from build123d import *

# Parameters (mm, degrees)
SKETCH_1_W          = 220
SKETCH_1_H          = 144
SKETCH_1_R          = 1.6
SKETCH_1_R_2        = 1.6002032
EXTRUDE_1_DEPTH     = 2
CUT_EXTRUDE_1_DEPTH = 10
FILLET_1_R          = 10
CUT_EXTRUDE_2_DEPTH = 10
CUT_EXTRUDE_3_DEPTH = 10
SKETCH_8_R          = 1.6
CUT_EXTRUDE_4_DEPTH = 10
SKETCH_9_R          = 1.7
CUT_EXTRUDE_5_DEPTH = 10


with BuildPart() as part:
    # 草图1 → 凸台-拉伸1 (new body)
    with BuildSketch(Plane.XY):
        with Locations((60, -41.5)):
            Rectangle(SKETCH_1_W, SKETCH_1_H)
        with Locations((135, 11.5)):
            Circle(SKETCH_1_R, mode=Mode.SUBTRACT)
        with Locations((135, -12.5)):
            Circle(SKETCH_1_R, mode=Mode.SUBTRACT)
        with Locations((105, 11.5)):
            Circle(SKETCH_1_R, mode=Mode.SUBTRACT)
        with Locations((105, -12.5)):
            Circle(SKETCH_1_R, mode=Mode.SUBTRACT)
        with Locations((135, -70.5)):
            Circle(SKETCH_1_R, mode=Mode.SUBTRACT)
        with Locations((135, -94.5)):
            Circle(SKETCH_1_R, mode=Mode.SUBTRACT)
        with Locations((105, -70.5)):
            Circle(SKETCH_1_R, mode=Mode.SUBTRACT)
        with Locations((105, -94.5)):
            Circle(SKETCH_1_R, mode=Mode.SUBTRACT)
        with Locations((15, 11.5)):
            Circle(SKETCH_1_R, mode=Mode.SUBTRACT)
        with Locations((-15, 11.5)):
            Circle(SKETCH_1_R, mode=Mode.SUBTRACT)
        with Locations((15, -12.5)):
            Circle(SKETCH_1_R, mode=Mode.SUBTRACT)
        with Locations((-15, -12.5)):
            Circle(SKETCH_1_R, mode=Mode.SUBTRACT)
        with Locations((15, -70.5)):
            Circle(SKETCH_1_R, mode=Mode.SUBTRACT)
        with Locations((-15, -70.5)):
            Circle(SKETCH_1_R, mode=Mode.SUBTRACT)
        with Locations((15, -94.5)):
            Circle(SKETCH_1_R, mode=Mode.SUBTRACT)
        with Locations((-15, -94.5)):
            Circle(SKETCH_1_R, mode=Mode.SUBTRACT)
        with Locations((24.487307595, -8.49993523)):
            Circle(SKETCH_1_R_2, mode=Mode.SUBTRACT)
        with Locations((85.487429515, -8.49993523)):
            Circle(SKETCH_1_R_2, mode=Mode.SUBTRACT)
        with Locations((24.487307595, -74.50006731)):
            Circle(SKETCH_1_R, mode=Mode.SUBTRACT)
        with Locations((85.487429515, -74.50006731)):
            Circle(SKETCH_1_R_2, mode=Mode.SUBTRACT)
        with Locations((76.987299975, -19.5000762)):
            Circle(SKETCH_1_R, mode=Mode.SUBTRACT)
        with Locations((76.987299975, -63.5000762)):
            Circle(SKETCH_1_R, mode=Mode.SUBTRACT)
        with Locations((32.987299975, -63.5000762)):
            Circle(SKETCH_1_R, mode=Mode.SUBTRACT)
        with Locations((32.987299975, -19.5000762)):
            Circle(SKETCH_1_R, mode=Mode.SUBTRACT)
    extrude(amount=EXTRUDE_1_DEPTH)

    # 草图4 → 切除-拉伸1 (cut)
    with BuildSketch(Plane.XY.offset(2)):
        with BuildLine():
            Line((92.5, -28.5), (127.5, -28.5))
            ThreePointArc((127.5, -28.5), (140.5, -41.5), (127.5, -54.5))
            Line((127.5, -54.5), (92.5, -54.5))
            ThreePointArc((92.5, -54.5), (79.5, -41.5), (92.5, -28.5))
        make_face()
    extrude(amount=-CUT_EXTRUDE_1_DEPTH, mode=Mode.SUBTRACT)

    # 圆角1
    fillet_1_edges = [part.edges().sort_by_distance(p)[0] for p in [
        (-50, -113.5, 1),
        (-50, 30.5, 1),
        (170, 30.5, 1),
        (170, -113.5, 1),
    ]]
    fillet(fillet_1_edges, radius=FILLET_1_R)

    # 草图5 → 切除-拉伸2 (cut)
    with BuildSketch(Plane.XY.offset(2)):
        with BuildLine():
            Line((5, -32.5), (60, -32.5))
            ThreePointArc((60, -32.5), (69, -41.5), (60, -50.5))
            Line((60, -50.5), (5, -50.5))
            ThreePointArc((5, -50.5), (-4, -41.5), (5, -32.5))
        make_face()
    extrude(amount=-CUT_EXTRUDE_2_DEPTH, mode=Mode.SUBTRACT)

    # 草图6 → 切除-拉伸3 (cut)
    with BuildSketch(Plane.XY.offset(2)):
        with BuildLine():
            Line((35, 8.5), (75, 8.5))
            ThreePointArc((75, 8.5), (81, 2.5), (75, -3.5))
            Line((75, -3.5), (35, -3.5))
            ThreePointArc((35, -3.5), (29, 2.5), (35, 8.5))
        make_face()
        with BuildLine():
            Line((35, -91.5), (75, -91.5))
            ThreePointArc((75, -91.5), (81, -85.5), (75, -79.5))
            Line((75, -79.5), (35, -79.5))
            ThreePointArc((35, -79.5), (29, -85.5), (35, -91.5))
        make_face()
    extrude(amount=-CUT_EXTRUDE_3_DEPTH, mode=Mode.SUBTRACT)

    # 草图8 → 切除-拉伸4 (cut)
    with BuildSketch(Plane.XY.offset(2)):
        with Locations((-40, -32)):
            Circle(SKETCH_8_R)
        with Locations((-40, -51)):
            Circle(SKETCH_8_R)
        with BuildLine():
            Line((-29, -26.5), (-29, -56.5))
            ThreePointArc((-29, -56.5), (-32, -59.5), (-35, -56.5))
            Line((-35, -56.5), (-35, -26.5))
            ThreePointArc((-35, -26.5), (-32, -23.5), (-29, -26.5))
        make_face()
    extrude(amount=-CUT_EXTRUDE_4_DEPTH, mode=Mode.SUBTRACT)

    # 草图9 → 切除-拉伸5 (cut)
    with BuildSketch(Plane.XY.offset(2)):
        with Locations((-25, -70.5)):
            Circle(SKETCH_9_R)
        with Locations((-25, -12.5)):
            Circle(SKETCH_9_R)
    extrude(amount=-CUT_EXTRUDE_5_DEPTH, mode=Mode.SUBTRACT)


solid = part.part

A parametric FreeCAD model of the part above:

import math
import FreeCAD as App
import Part
import Sketcher

V = App.Vector
Q = App.Units.Quantity


def edges_at(feature, points):
    """Names of the edges that pass closest to the given points."""
    edges = feature.Shape.Edges
    near = lambda p: min(range(len(edges)), key=lambda i: edges[i].distToShape(Part.Vertex(*p))[0])
    return sorted({f"Edge{near(p) + 1}" for p in points})

doc = App.newDocument("Part")
body = doc.addObject("PartDesign::Body", "Body")

sketch1 = body.newObject("Sketcher::SketchObject", "Sketch")
sketch1.AttachmentSupport = (doc.getObject("XY_Plane"), [""])
sketch1.MapMode = "FlatFace"
sketch1.addGeometry(Part.LineSegment(V(-50, 30.5, 0), V(-50, -113.5, 0)), False)
sketch1.addGeometry(Part.LineSegment(V(-50, -113.5, 0), V(170, -113.5, 0)), False)
sketch1.addGeometry(Part.LineSegment(V(170, -113.5, 0), V(170, 30.5, 0)), False)
sketch1.addGeometry(Part.LineSegment(V(170, 30.5, 0), V(-50, 30.5, 0)), False)
sketch1.addGeometry(Part.Circle(V(-15, -94.5, 0), V(0, 0, 1), 1.6), False)
sketch1.addGeometry(Part.Circle(V(15, -94.5, 0), V(0, 0, 1), 1.6), False)
sketch1.addGeometry(Part.Circle(V(-15, -70.5, 0), V(0, 0, 1), 1.6), False)
sketch1.addGeometry(Part.Circle(V(15, -70.5, 0), V(0, 0, 1), 1.6), False)
sketch1.addGeometry(Part.Circle(V(24.487308, -74.500067, 0), V(0, 0, 1), 1.6), False)
sketch1.addGeometry(Part.Circle(V(32.9873, -63.500076, 0), V(0, 0, 1), 1.6), False)
sketch1.addGeometry(Part.Circle(V(85.48743, -74.500067, 0), V(0, 0, 1), 1.600203), False)
sketch1.addGeometry(Part.Circle(V(105, -94.5, 0), V(0, 0, 1), 1.6), False)
sketch1.addGeometry(Part.Circle(V(135, -94.5, 0), V(0, 0, 1), 1.6), False)
sketch1.addGeometry(Part.Circle(V(105, -70.5, 0), V(0, 0, 1), 1.6), False)
sketch1.addGeometry(Part.Circle(V(135, -70.5, 0), V(0, 0, 1), 1.6), False)
sketch1.addGeometry(Part.Circle(V(76.9873, -63.500076, 0), V(0, 0, 1), 1.6), False)
sketch1.addGeometry(Part.Circle(V(32.9873, -19.500076, 0), V(0, 0, 1), 1.6), False)
sketch1.addGeometry(Part.Circle(V(-15, -12.5, 0), V(0, 0, 1), 1.6), False)
sketch1.addGeometry(Part.Circle(V(15, -12.5, 0), V(0, 0, 1), 1.6), False)
sketch1.addGeometry(Part.Circle(V(-15, 11.5, 0), V(0, 0, 1), 1.6), False)
sketch1.addGeometry(Part.Circle(V(15, 11.5, 0), V(0, 0, 1), 1.6), False)
sketch1.addGeometry(Part.Circle(V(24.487308, -8.499935, 0), V(0, 0, 1), 1.600203), False)
sketch1.addGeometry(Part.Circle(V(76.9873, -19.500076, 0), V(0, 0, 1), 1.6), False)
sketch1.addGeometry(Part.Circle(V(85.48743, -8.499935, 0), V(0, 0, 1), 1.600203), False)
sketch1.addGeometry(Part.Circle(V(105, -12.5, 0), V(0, 0, 1), 1.6), False)
sketch1.addGeometry(Part.Circle(V(135, -12.5, 0), V(0, 0, 1), 1.6), False)
sketch1.addGeometry(Part.Circle(V(105, 11.5, 0), V(0, 0, 1), 1.6), False)
sketch1.addGeometry(Part.Circle(V(135, 11.5, 0), V(0, 0, 1), 1.6), False)
sketch1.addConstraint(Sketcher.Constraint("Coincident", 0, 2, 1, 1))
sketch1.addConstraint(Sketcher.Constraint("Coincident", 1, 2, 2, 1))
sketch1.addConstraint(Sketcher.Constraint("Coincident", 2, 2, 3, 1))
sketch1.addConstraint(Sketcher.Constraint("Coincident", 3, 2, 0, 1))
sketch1.addConstraint(Sketcher.Constraint("Vertical", 0))
sketch1.addConstraint(Sketcher.Constraint("Horizontal", 1))
sketch1.addConstraint(Sketcher.Constraint("Vertical", 2))
sketch1.addConstraint(Sketcher.Constraint("Horizontal", 3))
sketch1.addConstraint(Sketcher.Constraint("Equal", 4, 5))
sketch1.addConstraint(Sketcher.Constraint("Equal", 5, 6))
sketch1.addConstraint(Sketcher.Constraint("Equal", 6, 7))
sketch1.addConstraint(Sketcher.Constraint("Equal", 7, 8))
sketch1.addConstraint(Sketcher.Constraint("Equal", 8, 9))
sketch1.addConstraint(Sketcher.Constraint("Equal", 9, 11))
sketch1.addConstraint(Sketcher.Constraint("Equal", 11, 12))
sketch1.addConstraint(Sketcher.Constraint("Equal", 12, 13))
sketch1.addConstraint(Sketcher.Constraint("Equal", 13, 14))
sketch1.addConstraint(Sketcher.Constraint("Equal", 14, 15))
sketch1.addConstraint(Sketcher.Constraint("Equal", 15, 16))
sketch1.addConstraint(Sketcher.Constraint("Equal", 16, 17))
sketch1.addConstraint(Sketcher.Constraint("Equal", 17, 18))
sketch1.addConstraint(Sketcher.Constraint("Equal", 18, 19))
sketch1.addConstraint(Sketcher.Constraint("Equal", 19, 20))
sketch1.addConstraint(Sketcher.Constraint("Equal", 10, 21))
sketch1.addConstraint(Sketcher.Constraint("Equal", 20, 22))
sketch1.addConstraint(Sketcher.Constraint("Equal", 21, 23))
sketch1.addConstraint(Sketcher.Constraint("Equal", 22, 24))
sketch1.addConstraint(Sketcher.Constraint("Equal", 24, 25))
sketch1.addConstraint(Sketcher.Constraint("Equal", 25, 26))
sketch1.addConstraint(Sketcher.Constraint("Equal", 26, 27))
sketch1.addConstraint(Sketcher.Constraint("Symmetric", 4, 3, 5, 3, -2))
sketch1.addConstraint(Sketcher.Constraint("Symmetric", 6, 3, 7, 3, -2))
sketch1.addConstraint(Sketcher.Constraint("Symmetric", 17, 3, 18, 3, -2))
sketch1.addConstraint(Sketcher.Constraint("Symmetric", 19, 3, 20, 3, -2))
sketch1.addConstraint(Sketcher.Constraint("Horizontal", 8, 3, 10, 3))
sketch1.addConstraint(Sketcher.Constraint("Horizontal", 5, 3, 11, 3))
sketch1.addConstraint(Sketcher.Constraint("Horizontal", 11, 3, 12, 3))
sketch1.addConstraint(Sketcher.Constraint("Horizontal", 7, 3, 13, 3))
sketch1.addConstraint(Sketcher.Constraint("Horizontal", 13, 3, 14, 3))
sketch1.addConstraint(Sketcher.Constraint("Horizontal", 9, 3, 15, 3))
sketch1.addConstraint(Sketcher.Constraint("Horizontal", 16, 3, 22, 3))
sketch1.addConstraint(Sketcher.Constraint("Horizontal", 21, 3, 23, 3))
sketch1.addConstraint(Sketcher.Constraint("Horizontal", 18, 3, 24, 3))
sketch1.addConstraint(Sketcher.Constraint("Horizontal", 24, 3, 25, 3))
sketch1.addConstraint(Sketcher.Constraint("Horizontal", 20, 3, 26, 3))
sketch1.addConstraint(Sketcher.Constraint("Horizontal", 26, 3, 27, 3))
sketch1.addConstraint(Sketcher.Constraint("Vertical", 4, 3, 6, 3))
sketch1.addConstraint(Sketcher.Constraint("Vertical", 11, 3, 13, 3))
sketch1.addConstraint(Sketcher.Constraint("Vertical", 12, 3, 14, 3))
sketch1.addConstraint(Sketcher.Constraint("Vertical", 9, 3, 16, 3))
sketch1.addConstraint(Sketcher.Constraint("Vertical", 6, 3, 17, 3))
sketch1.addConstraint(Sketcher.Constraint("Vertical", 17, 3, 19, 3))
sketch1.addConstraint(Sketcher.Constraint("Vertical", 8, 3, 21, 3))
sketch1.addConstraint(Sketcher.Constraint("Vertical", 15, 3, 22, 3))
sketch1.addConstraint(Sketcher.Constraint("Vertical", 10, 3, 23, 3))
sketch1.addConstraint(Sketcher.Constraint("Vertical", 13, 3, 24, 3))
sketch1.addConstraint(Sketcher.Constraint("Vertical", 14, 3, 25, 3))
sketch1.addConstraint(Sketcher.Constraint("Vertical", 24, 3, 26, 3))
sketch1.addConstraint(Sketcher.Constraint("Vertical", 25, 3, 27, 3))
sketch1.addConstraint(Sketcher.Constraint("Diameter", 4, Q("3.2 mm")))
sketch1.addConstraint(Sketcher.Constraint("DistanceX", 1, 1, 1, 2, Q("220 mm")))
sketch1.addConstraint(Sketcher.Constraint("DistanceY", 0, 2, 0, 1, Q("144 mm")))
sketch1.addConstraint(Sketcher.Constraint("DistanceX", 4, 3, -1, 1, Q("15 mm")))
sketch1.addConstraint(Sketcher.Constraint("DistanceX", -1, 1, 11, 3, Q("105 mm")))
sketch1.addConstraint(Sketcher.Constraint("DistanceX", -1, 1, 12, 3, Q("135 mm")))
sketch1.addConstraint(Sketcher.Constraint("DistanceX", 0, 2, -1, 1, Q("50 mm")))
sketch1.addConstraint(Sketcher.Constraint("DistanceY", 4, 3, 6, 3, Q("24 mm")))
sketch1.addConstraint(Sketcher.Constraint("DistanceX", 9, 3, 15, 3, Q("44 mm")))
sketch1.addConstraint(Sketcher.Constraint("DistanceY", 9, 3, 16, 3, Q("44 mm")))
sketch1.addConstraint(Sketcher.Constraint("DistanceY", 6, 3, 17, 3, Q("58 mm")))
sketch1.addConstraint(Sketcher.Constraint("DistanceY", 17, 3, 19, 3, Q("24 mm")))
sketch1.addConstraint(Sketcher.Constraint("DistanceY", 0, 2, 4, 3, Q("19 mm")))
sketch1.addConstraint(Sketcher.Constraint("DistanceY", 4, 3, -1, 1, Q("94.5 mm")))
sketch1.addConstraint(Sketcher.Constraint("Diameter", 10, Q("3.200406 mm")))
sketch1.addConstraint(Sketcher.Constraint("DistanceX", -1, 1, 9, 3, Q("32.9873 mm")))
sketch1.addConstraint(Sketcher.Constraint("DistanceX", -1, 1, 10, 3, Q("85.48743 mm")))
sketch1.addConstraint(Sketcher.Constraint("DistanceY", 8, 3, 9, 3, Q("10.999991 mm")))
sketch1.addConstraint(Sketcher.Constraint("DistanceX", 8, 3, 10, 3, Q("61.000122 mm")))
sketch1.addConstraint(Sketcher.Constraint("DistanceY", 16, 3, 21, 3, Q("11.000141 mm")))
sketch1.addConstraint(Sketcher.Constraint("DistanceY", 8, 3, -1, 1, Q("74.500067 mm")))
pad1 = body.newObject("PartDesign::Pad", "Pad")
pad1.Profile = sketch1
pad1.Length = 2

sketch2 = body.newObject("Sketcher::SketchObject", "Sketch001")
sketch2.AttachmentSupport = (doc.getObject("XY_Plane"), [""])
sketch2.MapMode = "FlatFace"
sketch2.AttachmentOffset = App.Placement(V(0, 0, 2), App.Rotation())
sketch2.addGeometry(Part.LineSegment(V(127.5, -28.5, 0), V(92.5, -28.5, 0)), False)
sketch2.addGeometry(Part.ArcOfCircle(Part.Circle(V(92.5, -41.5, 0), V(0, 0, 1), 13), math.radians(90), math.radians(270)), False)
sketch2.addGeometry(Part.LineSegment(V(92.5, -54.5, 0), V(127.5, -54.5, 0)), False)
sketch2.addGeometry(Part.ArcOfCircle(Part.Circle(V(127.5, -41.5, 0), V(0, 0, 1), 13), math.radians(-90), math.radians(90)), False)
sketch2.addConstraint(Sketcher.Constraint("Tangent", 0, 2, 1, 1))
sketch2.addConstraint(Sketcher.Constraint("Tangent", 1, 2, 2, 1))
sketch2.addConstraint(Sketcher.Constraint("Tangent", 2, 2, 3, 1))
sketch2.addConstraint(Sketcher.Constraint("Tangent", 3, 2, 0, 1))
sketch2.addConstraint(Sketcher.Constraint("Horizontal", 0))
sketch2.addConstraint(Sketcher.Constraint("Horizontal", 2))
sketch2.addConstraint(Sketcher.Constraint("Radius", 1, Q("13 mm")))
sketch2.addConstraint(Sketcher.Constraint("DistanceX", 0, 2, 0, 1, Q("35 mm")))
sketch2.addConstraint(Sketcher.Constraint("DistanceX", -1, 1, 1, 3, Q("92.5 mm")))
sketch2.addConstraint(Sketcher.Constraint("DistanceY", 1, 3, -1, 1, Q("41.5 mm")))
pocket1 = body.newObject("PartDesign::Pocket", "Pocket")
pocket1.Profile = sketch2
pocket1.Length = 10
doc.recompute()

fillet = body.newObject("PartDesign::Fillet", "Fillet")
fillet.Base = (pocket1, edges_at(pocket1, [
    (-50, -113.5, 1),
    (-50, 30.5, 1),
    (170, 30.5, 1),
    (170, -113.5, 1),
]))
fillet.Radius = 10

sketch3 = body.newObject("Sketcher::SketchObject", "Sketch002")
sketch3.AttachmentSupport = (doc.getObject("XY_Plane"), [""])
sketch3.MapMode = "FlatFace"
sketch3.AttachmentOffset = App.Placement(V(0, 0, 2), App.Rotation())
sketch3.addGeometry(Part.LineSegment(V(60, -32.5, 0), V(5, -32.5, 0)), False)
sketch3.addGeometry(Part.ArcOfCircle(Part.Circle(V(5, -41.5, 0), V(0, 0, 1), 9), math.radians(90), math.radians(270)), False)
sketch3.addGeometry(Part.LineSegment(V(5, -50.5, 0), V(60, -50.5, 0)), False)
sketch3.addGeometry(Part.ArcOfCircle(Part.Circle(V(60, -41.5, 0), V(0, 0, 1), 9), math.radians(-90), math.radians(90)), False)
sketch3.addConstraint(Sketcher.Constraint("Tangent", 0, 2, 1, 1))
sketch3.addConstraint(Sketcher.Constraint("Tangent", 1, 2, 2, 1))
sketch3.addConstraint(Sketcher.Constraint("Tangent", 2, 2, 3, 1))
sketch3.addConstraint(Sketcher.Constraint("Tangent", 3, 2, 0, 1))
sketch3.addConstraint(Sketcher.Constraint("Horizontal", 0))
sketch3.addConstraint(Sketcher.Constraint("Horizontal", 2))
sketch3.addConstraint(Sketcher.Constraint("Radius", 1, Q("9 mm")))
sketch3.addConstraint(Sketcher.Constraint("DistanceX", 0, 2, 0, 1, Q("55 mm")))
sketch3.addConstraint(Sketcher.Constraint("DistanceX", -1, 1, 1, 3, Q("5 mm")))
sketch3.addConstraint(Sketcher.Constraint("DistanceY", 1, 3, -1, 1, Q("41.5 mm")))
pocket2 = body.newObject("PartDesign::Pocket", "Pocket001")
pocket2.Profile = sketch3
pocket2.Length = 10

sketch4 = body.newObject("Sketcher::SketchObject", "Sketch003")
sketch4.AttachmentSupport = (doc.getObject("XY_Plane"), [""])
sketch4.MapMode = "FlatFace"
sketch4.AttachmentOffset = App.Placement(V(0, 0, 2), App.Rotation())
sketch4.addGeometry(Part.LineSegment(V(75, 8.5, 0), V(35, 8.5, 0)), False)
sketch4.addGeometry(Part.ArcOfCircle(Part.Circle(V(35, 2.5, 0), V(0, 0, 1), 6), math.radians(90), math.radians(270)), False)
sketch4.addGeometry(Part.LineSegment(V(35, -3.5, 0), V(75, -3.5, 0)), False)
sketch4.addGeometry(Part.ArcOfCircle(Part.Circle(V(75, 2.5, 0), V(0, 0, 1), 6), math.radians(-90), math.radians(90)), False)
sketch4.addGeometry(Part.LineSegment(V(35, -91.5, 0), V(75, -91.5, 0)), False)
sketch4.addGeometry(Part.ArcOfCircle(Part.Circle(V(75, -85.5, 0), V(0, 0, 1), 6), math.radians(-90), math.radians(90)), False)
sketch4.addGeometry(Part.LineSegment(V(75, -79.5, 0), V(35, -79.5, 0)), False)
sketch4.addGeometry(Part.ArcOfCircle(Part.Circle(V(35, -85.5, 0), V(0, 0, 1), 6), math.radians(90), math.radians(270)), False)
sketch4.addConstraint(Sketcher.Constraint("Tangent", 0, 2, 1, 1))
sketch4.addConstraint(Sketcher.Constraint("Tangent", 1, 2, 2, 1))
sketch4.addConstraint(Sketcher.Constraint("Tangent", 2, 2, 3, 1))
sketch4.addConstraint(Sketcher.Constraint("Tangent", 3, 2, 0, 1))
sketch4.addConstraint(Sketcher.Constraint("Tangent", 4, 2, 5, 1))
sketch4.addConstraint(Sketcher.Constraint("Tangent", 5, 2, 6, 1))
sketch4.addConstraint(Sketcher.Constraint("Tangent", 6, 2, 7, 1))
sketch4.addConstraint(Sketcher.Constraint("Tangent", 7, 2, 4, 1))
sketch4.addConstraint(Sketcher.Constraint("Horizontal", 0))
sketch4.addConstraint(Sketcher.Constraint("Horizontal", 2))
sketch4.addConstraint(Sketcher.Constraint("Horizontal", 4))
sketch4.addConstraint(Sketcher.Constraint("Horizontal", 6))
sketch4.addConstraint(Sketcher.Constraint("Equal", 3, 5))
sketch4.addConstraint(Sketcher.Constraint("Vertical", 3, 3, 5, 3))
sketch4.addConstraint(Sketcher.Constraint("Vertical", 1, 3, 7, 3))
sketch4.addConstraint(Sketcher.Constraint("Radius", 1, Q("6 mm")))
sketch4.addConstraint(Sketcher.Constraint("DistanceX", 0, 2, 0, 1, Q("40 mm")))
sketch4.addConstraint(Sketcher.Constraint("DistanceX", -1, 1, 1, 3, Q("35 mm")))
sketch4.addConstraint(Sketcher.Constraint("DistanceY", 5, 3, 3, 3, Q("88 mm")))
sketch4.addConstraint(Sketcher.Constraint("DistanceY", -1, 1, 1, 3, Q("2.5 mm")))
pocket3 = body.newObject("PartDesign::Pocket", "Pocket002")
pocket3.Profile = sketch4
pocket3.Length = 10

sketch5 = body.newObject("Sketcher::SketchObject", "Sketch004")
sketch5.AttachmentSupport = (doc.getObject("XY_Plane"), [""])
sketch5.MapMode = "FlatFace"
sketch5.AttachmentOffset = App.Placement(V(0, 0, 2), App.Rotation())
sketch5.addGeometry(Part.Circle(V(-40, -32, 0), V(0, 0, 1), 1.6), False)
sketch5.addGeometry(Part.Circle(V(-40, -51, 0), V(0, 0, 1), 1.6), False)
sketch5.addGeometry(Part.LineSegment(V(-29, -56.5, 0), V(-29, -26.5, 0)), False)
sketch5.addGeometry(Part.ArcOfCircle(Part.Circle(V(-32, -26.5, 0), V(0, 0, 1), 3), math.radians(0), math.radians(180)), False)
sketch5.addGeometry(Part.LineSegment(V(-35, -26.5, 0), V(-35, -56.5, 0)), False)
sketch5.addGeometry(Part.ArcOfCircle(Part.Circle(V(-32, -56.5, 0), V(0, 0, 1), 3), math.radians(180), math.radians(360)), False)
sketch5.addConstraint(Sketcher.Constraint("Tangent", 2, 2, 3, 1))
sketch5.addConstraint(Sketcher.Constraint("Tangent", 3, 2, 4, 1))
sketch5.addConstraint(Sketcher.Constraint("Tangent", 4, 2, 5, 1))
sketch5.addConstraint(Sketcher.Constraint("Tangent", 5, 2, 2, 1))
sketch5.addConstraint(Sketcher.Constraint("Vertical", 2))
sketch5.addConstraint(Sketcher.Constraint("Vertical", 4))
sketch5.addConstraint(Sketcher.Constraint("Equal", 0, 1))
sketch5.addConstraint(Sketcher.Constraint("Vertical", 0, 3, 1, 3))
sketch5.addConstraint(Sketcher.Constraint("Radius", 3, Q("3 mm")))
sketch5.addConstraint(Sketcher.Constraint("Diameter", 0, Q("3.2 mm")))
sketch5.addConstraint(Sketcher.Constraint("DistanceY", 2, 1, 2, 2, Q("30 mm")))
sketch5.addConstraint(Sketcher.Constraint("DistanceX", 0, 3, -1, 1, Q("40 mm")))
sketch5.addConstraint(Sketcher.Constraint("DistanceY", 0, 3, -1, 1, Q("32 mm")))
sketch5.addConstraint(Sketcher.Constraint("DistanceY", 1, 3, -1, 1, Q("51 mm")))
sketch5.addConstraint(Sketcher.Constraint("DistanceX", 3, 3, -1, 1, Q("32 mm")))
sketch5.addConstraint(Sketcher.Constraint("DistanceY", 3, 3, -1, 1, Q("26.5 mm")))
pocket4 = body.newObject("PartDesign::Pocket", "Pocket003")
pocket4.Profile = sketch5
pocket4.Length = 10

sketch6 = body.newObject("Sketcher::SketchObject", "Sketch005")
sketch6.AttachmentSupport = (doc.getObject("XY_Plane"), [""])
sketch6.MapMode = "FlatFace"
sketch6.AttachmentOffset = App.Placement(V(0, 0, 2), App.Rotation())
sketch6.addGeometry(Part.Circle(V(-25, -70.5, 0), V(0, 0, 1), 1.7), False)
sketch6.addGeometry(Part.Circle(V(-25, -12.5, 0), V(0, 0, 1), 1.7), False)
sketch6.addConstraint(Sketcher.Constraint("Equal", 0, 1))
sketch6.addConstraint(Sketcher.Constraint("Vertical", 0, 3, 1, 3))
sketch6.addConstraint(Sketcher.Constraint("Diameter", 0, Q("3.4 mm")))
sketch6.addConstraint(Sketcher.Constraint("DistanceX", 0, 3, -1, 1, Q("25 mm")))
sketch6.addConstraint(Sketcher.Constraint("DistanceY", 0, 3, 1, 3, Q("58 mm")))
sketch6.addConstraint(Sketcher.Constraint("DistanceY", 0, 3, -1, 1, Q("70.5 mm")))
pocket5 = body.newObject("PartDesign::Pocket", "Pocket004")
pocket5.Profile = sketch6
pocket5.Length = 10

doc.recompute()
